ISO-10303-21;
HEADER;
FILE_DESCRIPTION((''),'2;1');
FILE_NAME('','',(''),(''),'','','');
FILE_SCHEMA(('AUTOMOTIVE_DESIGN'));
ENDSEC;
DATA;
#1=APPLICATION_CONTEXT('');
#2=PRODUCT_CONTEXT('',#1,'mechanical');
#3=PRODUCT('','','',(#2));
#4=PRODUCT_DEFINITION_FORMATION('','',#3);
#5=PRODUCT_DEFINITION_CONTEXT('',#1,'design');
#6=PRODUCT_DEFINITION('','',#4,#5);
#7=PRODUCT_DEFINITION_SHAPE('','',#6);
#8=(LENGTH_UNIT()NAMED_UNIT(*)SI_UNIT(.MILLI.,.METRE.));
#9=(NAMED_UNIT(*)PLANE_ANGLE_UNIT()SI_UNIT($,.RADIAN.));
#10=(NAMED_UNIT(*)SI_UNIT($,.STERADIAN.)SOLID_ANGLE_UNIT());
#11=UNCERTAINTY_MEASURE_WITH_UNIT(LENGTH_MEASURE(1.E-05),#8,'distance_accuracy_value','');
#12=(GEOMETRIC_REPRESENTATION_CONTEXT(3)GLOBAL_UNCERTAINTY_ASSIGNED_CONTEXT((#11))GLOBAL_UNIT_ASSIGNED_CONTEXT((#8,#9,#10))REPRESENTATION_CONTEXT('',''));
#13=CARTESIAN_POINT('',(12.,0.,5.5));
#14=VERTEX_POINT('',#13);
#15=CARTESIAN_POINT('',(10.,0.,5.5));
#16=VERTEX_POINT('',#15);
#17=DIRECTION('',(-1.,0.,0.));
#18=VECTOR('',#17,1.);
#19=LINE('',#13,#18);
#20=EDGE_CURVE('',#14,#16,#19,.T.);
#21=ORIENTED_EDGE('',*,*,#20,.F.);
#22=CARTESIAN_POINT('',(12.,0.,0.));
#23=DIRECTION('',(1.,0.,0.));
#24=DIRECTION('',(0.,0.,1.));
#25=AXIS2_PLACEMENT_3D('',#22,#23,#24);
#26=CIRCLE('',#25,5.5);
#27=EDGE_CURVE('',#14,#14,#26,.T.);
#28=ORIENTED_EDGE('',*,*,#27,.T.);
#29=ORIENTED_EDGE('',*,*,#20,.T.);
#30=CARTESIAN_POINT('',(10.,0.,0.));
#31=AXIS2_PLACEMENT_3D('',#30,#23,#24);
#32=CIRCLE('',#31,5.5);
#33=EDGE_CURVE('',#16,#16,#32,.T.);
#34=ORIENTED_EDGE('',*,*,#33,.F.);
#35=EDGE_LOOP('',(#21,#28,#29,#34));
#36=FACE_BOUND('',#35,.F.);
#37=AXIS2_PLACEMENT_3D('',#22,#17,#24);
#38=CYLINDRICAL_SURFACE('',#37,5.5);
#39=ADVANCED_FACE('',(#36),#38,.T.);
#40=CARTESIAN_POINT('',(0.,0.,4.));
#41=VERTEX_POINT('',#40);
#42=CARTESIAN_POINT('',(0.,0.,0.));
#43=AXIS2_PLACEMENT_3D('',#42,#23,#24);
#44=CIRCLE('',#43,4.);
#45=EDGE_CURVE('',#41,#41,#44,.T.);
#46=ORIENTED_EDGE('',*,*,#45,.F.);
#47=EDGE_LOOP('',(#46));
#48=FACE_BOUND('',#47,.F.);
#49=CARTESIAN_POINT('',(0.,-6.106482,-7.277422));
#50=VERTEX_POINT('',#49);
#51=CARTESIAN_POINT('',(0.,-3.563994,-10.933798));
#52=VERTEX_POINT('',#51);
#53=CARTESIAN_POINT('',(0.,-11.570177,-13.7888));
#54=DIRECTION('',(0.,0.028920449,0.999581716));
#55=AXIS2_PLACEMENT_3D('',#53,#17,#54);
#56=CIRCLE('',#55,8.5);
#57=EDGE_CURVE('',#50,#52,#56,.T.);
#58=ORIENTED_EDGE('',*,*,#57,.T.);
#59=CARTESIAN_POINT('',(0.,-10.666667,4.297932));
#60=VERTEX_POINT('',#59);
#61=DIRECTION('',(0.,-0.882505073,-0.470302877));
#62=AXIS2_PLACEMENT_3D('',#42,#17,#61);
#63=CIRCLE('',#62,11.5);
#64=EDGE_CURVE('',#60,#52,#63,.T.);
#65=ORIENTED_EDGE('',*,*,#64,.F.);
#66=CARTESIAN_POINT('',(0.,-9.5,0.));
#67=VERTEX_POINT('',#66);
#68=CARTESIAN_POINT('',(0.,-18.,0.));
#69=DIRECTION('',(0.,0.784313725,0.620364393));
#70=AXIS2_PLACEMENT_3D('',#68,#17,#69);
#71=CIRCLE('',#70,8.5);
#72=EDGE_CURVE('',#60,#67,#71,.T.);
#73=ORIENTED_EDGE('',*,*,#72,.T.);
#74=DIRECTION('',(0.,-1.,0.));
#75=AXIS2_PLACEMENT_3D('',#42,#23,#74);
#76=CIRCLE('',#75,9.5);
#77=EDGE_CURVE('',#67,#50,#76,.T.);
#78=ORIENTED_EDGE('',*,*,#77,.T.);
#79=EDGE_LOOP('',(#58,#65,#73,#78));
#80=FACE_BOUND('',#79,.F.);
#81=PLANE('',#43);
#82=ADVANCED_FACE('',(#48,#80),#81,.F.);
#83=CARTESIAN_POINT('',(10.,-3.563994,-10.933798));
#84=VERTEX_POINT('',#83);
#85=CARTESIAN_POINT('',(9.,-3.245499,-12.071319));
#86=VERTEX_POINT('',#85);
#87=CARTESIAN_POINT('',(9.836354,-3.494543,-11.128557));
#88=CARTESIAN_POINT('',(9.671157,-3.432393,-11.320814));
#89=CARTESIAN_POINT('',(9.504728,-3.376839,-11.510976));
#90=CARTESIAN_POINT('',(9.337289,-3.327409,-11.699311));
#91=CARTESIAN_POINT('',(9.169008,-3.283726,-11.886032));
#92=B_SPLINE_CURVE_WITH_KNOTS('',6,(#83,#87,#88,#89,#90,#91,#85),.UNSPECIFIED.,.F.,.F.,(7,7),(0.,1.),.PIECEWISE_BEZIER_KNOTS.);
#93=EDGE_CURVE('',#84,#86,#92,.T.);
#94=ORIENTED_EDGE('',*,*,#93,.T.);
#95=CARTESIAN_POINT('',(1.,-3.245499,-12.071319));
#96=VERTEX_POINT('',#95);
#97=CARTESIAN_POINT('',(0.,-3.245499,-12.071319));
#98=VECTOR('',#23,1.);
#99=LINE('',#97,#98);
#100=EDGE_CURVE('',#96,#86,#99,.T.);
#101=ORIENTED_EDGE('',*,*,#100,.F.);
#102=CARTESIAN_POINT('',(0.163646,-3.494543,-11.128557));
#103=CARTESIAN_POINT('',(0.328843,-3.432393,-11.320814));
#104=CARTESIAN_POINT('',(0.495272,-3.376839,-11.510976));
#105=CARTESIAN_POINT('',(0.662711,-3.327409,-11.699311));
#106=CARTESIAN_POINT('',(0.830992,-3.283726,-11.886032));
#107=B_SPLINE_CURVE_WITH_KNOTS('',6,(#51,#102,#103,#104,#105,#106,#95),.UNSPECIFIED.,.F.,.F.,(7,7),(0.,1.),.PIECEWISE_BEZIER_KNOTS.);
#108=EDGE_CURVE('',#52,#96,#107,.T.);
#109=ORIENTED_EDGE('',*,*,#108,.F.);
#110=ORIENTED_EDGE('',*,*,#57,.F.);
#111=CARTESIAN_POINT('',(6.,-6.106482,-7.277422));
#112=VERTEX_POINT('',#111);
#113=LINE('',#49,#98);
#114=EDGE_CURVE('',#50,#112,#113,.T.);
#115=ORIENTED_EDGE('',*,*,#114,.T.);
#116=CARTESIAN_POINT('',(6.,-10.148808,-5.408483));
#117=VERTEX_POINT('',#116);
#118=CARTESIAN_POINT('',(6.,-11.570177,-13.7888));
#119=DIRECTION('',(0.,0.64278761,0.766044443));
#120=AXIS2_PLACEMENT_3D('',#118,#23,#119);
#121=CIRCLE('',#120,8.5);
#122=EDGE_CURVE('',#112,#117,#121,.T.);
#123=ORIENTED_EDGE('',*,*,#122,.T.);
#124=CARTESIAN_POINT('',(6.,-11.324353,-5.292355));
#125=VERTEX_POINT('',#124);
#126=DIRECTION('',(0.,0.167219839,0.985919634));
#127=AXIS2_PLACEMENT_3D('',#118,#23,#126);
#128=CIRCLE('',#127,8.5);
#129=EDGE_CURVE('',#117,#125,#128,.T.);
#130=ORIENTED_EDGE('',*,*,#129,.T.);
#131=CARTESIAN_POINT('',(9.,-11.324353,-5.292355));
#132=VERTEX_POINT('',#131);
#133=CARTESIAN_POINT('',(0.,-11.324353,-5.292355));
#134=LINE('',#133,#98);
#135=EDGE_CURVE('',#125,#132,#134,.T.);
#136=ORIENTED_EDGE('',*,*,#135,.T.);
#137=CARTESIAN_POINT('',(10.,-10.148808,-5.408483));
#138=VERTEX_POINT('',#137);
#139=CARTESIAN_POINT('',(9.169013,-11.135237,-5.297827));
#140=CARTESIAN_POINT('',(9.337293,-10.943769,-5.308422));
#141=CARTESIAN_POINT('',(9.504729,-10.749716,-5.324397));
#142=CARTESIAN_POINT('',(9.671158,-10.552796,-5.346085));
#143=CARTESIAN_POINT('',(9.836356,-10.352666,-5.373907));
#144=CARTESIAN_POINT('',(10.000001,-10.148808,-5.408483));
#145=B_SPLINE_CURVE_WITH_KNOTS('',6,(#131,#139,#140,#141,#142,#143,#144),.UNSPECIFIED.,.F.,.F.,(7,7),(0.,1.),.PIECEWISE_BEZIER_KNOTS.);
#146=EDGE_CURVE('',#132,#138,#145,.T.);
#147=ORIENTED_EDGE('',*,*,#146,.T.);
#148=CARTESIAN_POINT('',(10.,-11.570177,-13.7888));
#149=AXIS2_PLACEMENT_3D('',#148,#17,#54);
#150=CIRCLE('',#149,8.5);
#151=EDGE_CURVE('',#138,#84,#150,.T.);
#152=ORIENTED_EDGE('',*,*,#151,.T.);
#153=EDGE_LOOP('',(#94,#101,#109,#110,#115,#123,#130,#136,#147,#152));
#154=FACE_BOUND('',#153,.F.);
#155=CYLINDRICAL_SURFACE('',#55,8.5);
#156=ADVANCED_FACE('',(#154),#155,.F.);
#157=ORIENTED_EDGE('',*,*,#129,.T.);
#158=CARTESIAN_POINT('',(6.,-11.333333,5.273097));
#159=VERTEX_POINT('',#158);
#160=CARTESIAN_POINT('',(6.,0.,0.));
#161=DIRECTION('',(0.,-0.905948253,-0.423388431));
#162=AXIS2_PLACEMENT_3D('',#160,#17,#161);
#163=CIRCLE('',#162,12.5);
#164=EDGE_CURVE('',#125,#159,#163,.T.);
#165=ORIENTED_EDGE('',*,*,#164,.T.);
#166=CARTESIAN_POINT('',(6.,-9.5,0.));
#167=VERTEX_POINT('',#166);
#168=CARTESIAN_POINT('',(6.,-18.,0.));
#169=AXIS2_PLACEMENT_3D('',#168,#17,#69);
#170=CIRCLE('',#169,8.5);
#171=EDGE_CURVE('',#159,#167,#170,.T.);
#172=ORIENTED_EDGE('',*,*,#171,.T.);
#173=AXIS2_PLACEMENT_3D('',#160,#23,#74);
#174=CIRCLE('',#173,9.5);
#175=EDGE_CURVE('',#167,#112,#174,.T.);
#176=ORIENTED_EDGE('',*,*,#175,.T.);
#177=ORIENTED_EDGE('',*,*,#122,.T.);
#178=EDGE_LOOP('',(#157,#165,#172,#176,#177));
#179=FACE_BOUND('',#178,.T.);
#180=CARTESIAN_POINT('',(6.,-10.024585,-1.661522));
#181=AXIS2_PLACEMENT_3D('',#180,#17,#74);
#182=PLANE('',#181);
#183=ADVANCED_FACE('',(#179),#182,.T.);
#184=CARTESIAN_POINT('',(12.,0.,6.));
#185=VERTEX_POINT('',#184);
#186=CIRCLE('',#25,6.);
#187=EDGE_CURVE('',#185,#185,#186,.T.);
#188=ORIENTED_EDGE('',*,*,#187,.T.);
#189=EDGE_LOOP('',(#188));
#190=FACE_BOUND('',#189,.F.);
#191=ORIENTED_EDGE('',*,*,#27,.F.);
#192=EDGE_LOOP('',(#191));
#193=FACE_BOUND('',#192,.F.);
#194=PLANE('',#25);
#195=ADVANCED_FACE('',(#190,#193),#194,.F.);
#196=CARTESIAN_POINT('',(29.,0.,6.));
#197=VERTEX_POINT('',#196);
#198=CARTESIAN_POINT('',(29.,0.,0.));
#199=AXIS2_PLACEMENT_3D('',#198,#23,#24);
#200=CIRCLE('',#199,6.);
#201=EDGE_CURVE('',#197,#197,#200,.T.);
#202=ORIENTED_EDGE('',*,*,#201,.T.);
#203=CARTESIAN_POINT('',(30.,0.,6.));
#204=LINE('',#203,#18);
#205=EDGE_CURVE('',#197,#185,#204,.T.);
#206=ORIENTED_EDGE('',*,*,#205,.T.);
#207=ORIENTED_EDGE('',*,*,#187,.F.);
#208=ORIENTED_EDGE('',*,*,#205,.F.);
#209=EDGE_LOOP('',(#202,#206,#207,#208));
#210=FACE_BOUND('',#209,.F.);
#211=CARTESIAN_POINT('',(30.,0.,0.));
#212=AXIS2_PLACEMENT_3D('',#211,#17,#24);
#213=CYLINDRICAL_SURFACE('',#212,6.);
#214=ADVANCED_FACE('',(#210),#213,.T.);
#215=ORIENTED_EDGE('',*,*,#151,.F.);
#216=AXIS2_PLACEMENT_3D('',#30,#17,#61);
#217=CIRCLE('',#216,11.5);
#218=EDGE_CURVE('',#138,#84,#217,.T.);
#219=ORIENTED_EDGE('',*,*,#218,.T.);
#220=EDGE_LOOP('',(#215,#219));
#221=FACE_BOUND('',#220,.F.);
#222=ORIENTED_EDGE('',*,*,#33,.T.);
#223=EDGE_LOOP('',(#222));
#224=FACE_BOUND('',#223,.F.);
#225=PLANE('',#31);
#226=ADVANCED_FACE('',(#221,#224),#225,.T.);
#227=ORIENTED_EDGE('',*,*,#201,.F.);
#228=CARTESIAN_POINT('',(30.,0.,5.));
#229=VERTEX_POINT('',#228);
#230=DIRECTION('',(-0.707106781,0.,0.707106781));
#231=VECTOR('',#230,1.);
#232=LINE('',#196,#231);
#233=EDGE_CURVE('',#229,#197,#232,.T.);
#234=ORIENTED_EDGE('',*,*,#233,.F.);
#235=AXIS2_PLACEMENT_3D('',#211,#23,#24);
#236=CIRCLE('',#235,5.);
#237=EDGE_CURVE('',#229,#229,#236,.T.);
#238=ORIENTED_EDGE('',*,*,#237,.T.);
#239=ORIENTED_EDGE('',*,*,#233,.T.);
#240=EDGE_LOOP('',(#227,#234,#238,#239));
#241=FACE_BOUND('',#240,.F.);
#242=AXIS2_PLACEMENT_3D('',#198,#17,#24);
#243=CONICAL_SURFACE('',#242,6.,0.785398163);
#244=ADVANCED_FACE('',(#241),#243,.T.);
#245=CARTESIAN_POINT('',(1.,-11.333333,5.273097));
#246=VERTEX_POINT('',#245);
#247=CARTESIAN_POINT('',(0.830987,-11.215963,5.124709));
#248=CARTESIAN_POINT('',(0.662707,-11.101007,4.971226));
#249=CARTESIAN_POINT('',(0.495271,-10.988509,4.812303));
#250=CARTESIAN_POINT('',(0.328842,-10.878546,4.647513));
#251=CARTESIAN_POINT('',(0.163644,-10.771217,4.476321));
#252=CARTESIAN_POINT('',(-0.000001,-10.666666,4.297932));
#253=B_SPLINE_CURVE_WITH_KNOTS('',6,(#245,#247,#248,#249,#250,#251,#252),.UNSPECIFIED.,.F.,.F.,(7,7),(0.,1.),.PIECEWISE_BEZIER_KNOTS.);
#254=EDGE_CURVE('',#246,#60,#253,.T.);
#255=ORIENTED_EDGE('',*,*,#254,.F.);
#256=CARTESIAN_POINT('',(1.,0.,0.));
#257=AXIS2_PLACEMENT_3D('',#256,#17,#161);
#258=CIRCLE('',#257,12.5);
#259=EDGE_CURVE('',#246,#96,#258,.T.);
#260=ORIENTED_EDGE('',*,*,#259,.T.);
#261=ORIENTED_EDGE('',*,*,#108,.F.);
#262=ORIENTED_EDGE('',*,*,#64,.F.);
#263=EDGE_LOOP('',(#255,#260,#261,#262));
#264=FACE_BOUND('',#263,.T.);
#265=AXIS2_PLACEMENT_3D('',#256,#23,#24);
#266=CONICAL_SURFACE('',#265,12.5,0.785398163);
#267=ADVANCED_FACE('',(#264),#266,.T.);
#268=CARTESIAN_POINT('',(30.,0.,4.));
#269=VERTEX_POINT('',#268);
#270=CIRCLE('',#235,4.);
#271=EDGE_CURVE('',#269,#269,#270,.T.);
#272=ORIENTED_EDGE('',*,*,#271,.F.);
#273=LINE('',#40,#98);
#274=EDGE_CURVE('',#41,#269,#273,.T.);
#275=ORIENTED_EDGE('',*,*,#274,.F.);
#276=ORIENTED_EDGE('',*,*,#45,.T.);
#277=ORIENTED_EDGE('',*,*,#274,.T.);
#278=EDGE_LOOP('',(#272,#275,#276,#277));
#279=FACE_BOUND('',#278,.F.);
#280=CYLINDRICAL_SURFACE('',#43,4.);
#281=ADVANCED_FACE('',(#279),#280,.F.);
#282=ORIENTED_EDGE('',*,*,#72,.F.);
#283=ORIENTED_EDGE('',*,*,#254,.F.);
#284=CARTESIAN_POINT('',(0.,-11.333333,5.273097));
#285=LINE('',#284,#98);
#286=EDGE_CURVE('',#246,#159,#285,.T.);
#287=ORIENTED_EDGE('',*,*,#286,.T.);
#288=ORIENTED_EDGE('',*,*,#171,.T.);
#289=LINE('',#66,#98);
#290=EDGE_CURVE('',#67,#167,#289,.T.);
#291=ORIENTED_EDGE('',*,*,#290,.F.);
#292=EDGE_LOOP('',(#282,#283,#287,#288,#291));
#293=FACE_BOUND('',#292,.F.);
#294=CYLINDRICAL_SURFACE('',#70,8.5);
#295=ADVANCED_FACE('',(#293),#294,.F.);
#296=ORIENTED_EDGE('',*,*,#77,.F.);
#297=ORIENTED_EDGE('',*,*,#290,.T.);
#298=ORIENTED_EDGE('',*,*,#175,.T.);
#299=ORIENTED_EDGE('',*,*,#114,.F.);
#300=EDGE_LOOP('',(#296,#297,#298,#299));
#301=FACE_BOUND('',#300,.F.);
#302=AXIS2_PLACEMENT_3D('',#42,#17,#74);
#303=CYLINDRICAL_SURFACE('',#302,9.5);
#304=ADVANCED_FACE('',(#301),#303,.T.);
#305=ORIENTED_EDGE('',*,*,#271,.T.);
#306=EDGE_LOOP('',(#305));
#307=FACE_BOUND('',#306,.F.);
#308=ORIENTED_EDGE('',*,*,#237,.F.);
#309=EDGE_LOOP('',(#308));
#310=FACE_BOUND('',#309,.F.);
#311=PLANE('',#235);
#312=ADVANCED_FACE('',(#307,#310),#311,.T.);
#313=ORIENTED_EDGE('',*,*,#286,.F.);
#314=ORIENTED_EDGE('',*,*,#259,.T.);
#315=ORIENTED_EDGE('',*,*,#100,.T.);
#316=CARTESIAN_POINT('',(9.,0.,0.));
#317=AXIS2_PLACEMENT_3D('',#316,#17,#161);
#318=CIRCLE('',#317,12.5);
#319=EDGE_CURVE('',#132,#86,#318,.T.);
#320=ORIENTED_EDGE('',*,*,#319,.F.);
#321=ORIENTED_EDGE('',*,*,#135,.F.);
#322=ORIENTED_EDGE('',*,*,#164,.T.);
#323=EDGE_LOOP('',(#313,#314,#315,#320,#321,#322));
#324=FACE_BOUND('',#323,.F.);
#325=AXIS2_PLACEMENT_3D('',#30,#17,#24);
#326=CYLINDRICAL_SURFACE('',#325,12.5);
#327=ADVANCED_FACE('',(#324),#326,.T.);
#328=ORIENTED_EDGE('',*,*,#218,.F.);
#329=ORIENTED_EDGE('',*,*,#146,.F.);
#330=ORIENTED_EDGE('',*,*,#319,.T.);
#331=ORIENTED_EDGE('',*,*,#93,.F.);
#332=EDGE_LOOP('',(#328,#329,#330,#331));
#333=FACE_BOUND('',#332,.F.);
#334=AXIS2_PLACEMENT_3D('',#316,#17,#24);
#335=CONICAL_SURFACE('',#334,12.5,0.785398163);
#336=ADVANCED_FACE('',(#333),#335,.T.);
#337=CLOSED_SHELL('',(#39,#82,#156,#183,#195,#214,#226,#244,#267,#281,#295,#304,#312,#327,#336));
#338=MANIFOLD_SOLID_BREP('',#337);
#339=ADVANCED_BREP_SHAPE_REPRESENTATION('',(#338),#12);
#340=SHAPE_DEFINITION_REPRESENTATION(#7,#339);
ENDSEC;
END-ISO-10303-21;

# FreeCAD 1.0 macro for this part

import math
import FreeCAD as App
import Part
import Sketcher
from FreeCAD import Vector
Q = App.Units.Quantity


def edges_at(feature, points):
    """Names of the edges that pass closest to the given points."""
    edges = feature.Shape.Edges
    near = lambda p: min(range(len(edges)), key=lambda i: edges[i].distToShape(Part.Vertex(*p))[0])
    return sorted({f"Edge{near(p) + 1}" for p in points})

doc = App.newDocument("Part")
body = doc.addObject("PartDesign::Body", "Body")

# Sketch on XZ plane
sketch1 = body.newObject("Sketcher::SketchObject", "Sketch")
sketch1.AttachmentSupport = (doc.getObject("XZ_Plane"), [""])
sketch1.MapMode = "FlatFace"
sketch1.addGeometry([
    Part.LineSegment(Vector(0, 12.5, 0), Vector(0, 4, 0)),  # 0
    Part.LineSegment(Vector(0, 4, 0), Vector(30, 4, 0)),  # 1
    Part.LineSegment(Vector(30, 4, 0), Vector(30, 6, 0)),  # 2
    Part.LineSegment(Vector(30, 6, 0), Vector(12, 6, 0)),  # 3
    Part.LineSegment(Vector(12, 6, 0), Vector(12, 5.5, 0)),  # 4
    Part.LineSegment(Vector(12, 5.5, 0), Vector(10, 5.5, 0)),  # 5
    Part.LineSegment(Vector(10, 5.5, 0), Vector(10, 12.5, 0)),  # 6
    Part.LineSegment(Vector(10, 12.5, 0), Vector(0, 12.5, 0)),  # 7
], False)
sketch1.addConstraint([
    Sketcher.Constraint("Coincident", 0, 2, 1, 1),
    Sketcher.Constraint("Coincident", 1, 2, 2, 1),
    Sketcher.Constraint("Coincident", 2, 2, 3, 1),
    Sketcher.Constraint("Coincident", 3, 2, 4, 1),
    Sketcher.Constraint("Coincident", 4, 2, 5, 1),
    Sketcher.Constraint("Coincident", 5, 2, 6, 1),
    Sketcher.Constraint("Coincident", 6, 2, 7, 1),
    Sketcher.Constraint("Coincident", 7, 2, 0, 1),
    Sketcher.Constraint("Vertical", 0),
    Sketcher.Constraint("Horizontal", 1),
    Sketcher.Constraint("Vertical", 2),
    Sketcher.Constraint("Horizontal", 3),
    Sketcher.Constraint("Vertical", 4),
    Sketcher.Constraint("Horizontal", 5),
    Sketcher.Constraint("Vertical", 6),
    Sketcher.Constraint("Horizontal", 7),
    Sketcher.Constraint("PointOnObject", 0, 2, -2),
    Sketcher.Constraint("Equal", 5, 2),
    Sketcher.Constraint("DistanceX", 1, 1, 1, 2, Q("30 mm")),
    Sketcher.Constraint("DistanceX", 3, 2, 3, 1, Q("18 mm")),
    Sketcher.Constraint("DistanceX", 5, 2, 5, 1, Q("2 mm")),
    Sketcher.Constraint("DistanceY", 6, 1, 6, 2, Q("7 mm")),
    Sketcher.Constraint("DistanceY", 0, 2, 0, 1, Q("8.5 mm")),
    Sketcher.Constraint("DistanceY", -1, 1, 0, 2, Q("4 mm")),
])
revolution = body.newObject("PartDesign::Revolution", "Revolution")
revolution.Profile = sketch1
revolution.ReferenceAxis = (sketch1, ["H_Axis"])
revolution.Angle = 360
doc.recompute()

chamfer = body.newObject("PartDesign::Chamfer", "Chamfer")
chamfer.Base = (revolution, edges_at(revolution, [(30, 0, -6), (10, 0, -12.5), (0, 0, -12.5)]))
chamfer.Size = 1

# Sketch on YZ plane
sketch2 = body.newObject("Sketcher::SketchObject", "Sketch001")
sketch2.AttachmentSupport = (doc.getObject("YZ_Plane"), [""])
sketch2.MapMode = "FlatFace"
sketch2.addGeometry([
    Part.ArcOfCircle(Part.Circle(Vector(0, 0, 0), Vector(0, 0, 1), 12), math.radians(-155), math.radians(-105)),
    Part.ArcOfCircle(Part.Circle(Vector(-12, -14, 0), Vector(0, 0, 1), 8), math.radians(12), math.radians(88)),
], False)
sketch2.addConstraint([
    Sketcher.Constraint("Coincident", 0, 1, 1, 2),
    Sketcher.Constraint("Coincident", 1, 1, 0, 2),
    Sketcher.Constraint("Coincident", 0, 3, -1, 1),
    Sketcher.Constraint("Radius", 0, Q("12.5 mm")),
    Sketcher.Constraint("Radius", 1, Q("8.5 mm")),
    Sketcher.Constraint("DistanceY", 1, 3, -1, 1, Q("13.7888 mm")),
    Sketcher.Constraint("DistanceX", 1, 1, -1, 1, Q("3.245499 mm")),
])
pocket1 = body.newObject("PartDesign::Pocket", "Pocket")
pocket1.Profile = sketch2
pocket1.Length = 10
pocket1.Reversed = True

# Sketch on YZ plane
sketch3 = body.newObject("Sketcher::SketchObject", "Sketch002")
sketch3.AttachmentSupport = (doc.getObject("YZ_Plane"), [""])
sketch3.MapMode = "FlatFace"
sketch3.addGeometry([
    Part.ArcOfCircle(Part.Circle(Vector(0, 0, 0), Vector(0, 0, 1), 9.5), math.radians(180), math.radians(230)),  # 0
    Part.ArcOfCircle(Part.Circle(Vector(-11.6, -13.8, 0), Vector(0, 0, 1), 8.5), math.radians(50), math.radians(80)),  # 1
    Part.ArcOfCircle(Part.Circle(Vector(-11.6, -13.8, 0), Vector(0, 0, 1), 8.5), math.radians(80.37), math.radians(88.34)),  # 2
    Part.ArcOfCircle(Part.Circle(Vector(0, 0, 0), Vector(0, 0, 1), 12.5), math.radians(155), math.radians(205)),  # 3
    Part.ArcOfCircle(Part.Circle(Vector(-18, 0, 0), Vector(0, 0, 1), 8.5), math.radians(0), math.radians(38)),  # 4
], False)
sketch3.addConstraint([
    Sketcher.Constraint("Tangent", 0, 2, 1, 1),
    Sketcher.Constraint("Tangent", 1, 2, 2, 1),
    Sketcher.Constraint("Coincident", 2, 2, 3, 2),
    Sketcher.Constraint("Coincident", 3, 1, 4, 2),
    Sketcher.Constraint("Tangent", 4, 1, 0, 1),
    Sketcher.Constraint("Coincident", 0, 3, -1, 1),
    Sketcher.Constraint("Coincident", 3, 3, -1, 1),
    Sketcher.Constraint("Equal", 1, 2),
    Sketcher.Constraint("Equal", 2, 4),
    Sketcher.Constraint("PointOnObject", 4, 3, -1),
    Sketcher.Constraint("Radius", 0, Q("9.5 mm")),
    Sketcher.Constraint("Radius", 1, Q("8.5 mm")),
    Sketcher.Constraint("Radius", 3, Q("12.5 mm")),
    Sketcher.Constraint("DistanceY", 1, 3, -1, 1, Q("13.7888 mm")),
    Sketcher.Constraint("DistanceX", 1, 2, -1, 1, Q("10.148808 mm")),
])
pocket2 = body.newObject("PartDesign::Pocket", "Pocket001")
pocket2.Profile = sketch3
pocket2.Length = 6
pocket2.Reversed = True

doc.recompute()
